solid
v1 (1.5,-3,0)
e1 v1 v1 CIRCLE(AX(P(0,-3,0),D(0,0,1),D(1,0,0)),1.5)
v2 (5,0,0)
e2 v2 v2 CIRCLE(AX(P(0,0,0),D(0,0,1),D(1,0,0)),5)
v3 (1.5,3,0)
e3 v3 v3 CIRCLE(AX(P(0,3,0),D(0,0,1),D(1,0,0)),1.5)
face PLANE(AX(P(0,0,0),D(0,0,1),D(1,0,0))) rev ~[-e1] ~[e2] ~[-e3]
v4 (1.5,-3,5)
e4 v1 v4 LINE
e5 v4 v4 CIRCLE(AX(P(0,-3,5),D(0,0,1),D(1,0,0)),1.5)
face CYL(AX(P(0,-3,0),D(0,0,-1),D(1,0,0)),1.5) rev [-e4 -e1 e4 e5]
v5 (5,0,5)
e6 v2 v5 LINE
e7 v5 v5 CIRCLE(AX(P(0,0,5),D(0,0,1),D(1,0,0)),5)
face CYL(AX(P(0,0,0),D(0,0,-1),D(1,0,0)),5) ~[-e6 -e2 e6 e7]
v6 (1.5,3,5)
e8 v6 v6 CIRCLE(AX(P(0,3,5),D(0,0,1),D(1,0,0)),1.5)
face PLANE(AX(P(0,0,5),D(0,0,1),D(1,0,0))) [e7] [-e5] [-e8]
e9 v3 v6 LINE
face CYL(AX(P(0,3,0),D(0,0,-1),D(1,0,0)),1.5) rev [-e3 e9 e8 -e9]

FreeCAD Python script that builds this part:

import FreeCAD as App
import Part
import Sketcher

V = App.Vector
Q = App.Units.Quantity

doc = App.newDocument("Part")
body = doc.addObject("PartDesign::Body", "Body")

# Sketch on XY plane
sketch1 = body.newObject("Sketcher::SketchObject", "Sketch")
sketch1.AttachmentSupport = (doc.getObject("XY_Plane"), [""])
sketch1.MapMode = "FlatFace"
sketch1.addGeometry([
    Part.Circle(V(0, 0, 0), V(0, 0, 1), 5),
    Part.Circle(V(0, -3, 0), V(0, 0, 1), 1.5),
    Part.Circle(V(0, 3, 0), V(0, 0, 1), 1.5),
], False)
sketch1.addConstraint([
    Sketcher.Constraint("Coincident", 0, 3, -1, 1),
    Sketcher.Constraint("Equal", 1, 2),
    Sketcher.Constraint("Symmetric", 1, 3, 2, 3, -1, 1),
    Sketcher.Constraint("PointOnObject", 1, 3, -2),
    Sketcher.Constraint("Diameter", 0, Q("10 mm")),
    Sketcher.Constraint("Diameter", 1, Q("3 mm")),
    Sketcher.Constraint("DistanceY", 1, 3, -1, 1, Q("3 mm")),
])
pad1 = body.newObject("PartDesign::Pad", "Pad")
pad1.Profile = sketch1
pad1.Length = 5

doc.recompute()
